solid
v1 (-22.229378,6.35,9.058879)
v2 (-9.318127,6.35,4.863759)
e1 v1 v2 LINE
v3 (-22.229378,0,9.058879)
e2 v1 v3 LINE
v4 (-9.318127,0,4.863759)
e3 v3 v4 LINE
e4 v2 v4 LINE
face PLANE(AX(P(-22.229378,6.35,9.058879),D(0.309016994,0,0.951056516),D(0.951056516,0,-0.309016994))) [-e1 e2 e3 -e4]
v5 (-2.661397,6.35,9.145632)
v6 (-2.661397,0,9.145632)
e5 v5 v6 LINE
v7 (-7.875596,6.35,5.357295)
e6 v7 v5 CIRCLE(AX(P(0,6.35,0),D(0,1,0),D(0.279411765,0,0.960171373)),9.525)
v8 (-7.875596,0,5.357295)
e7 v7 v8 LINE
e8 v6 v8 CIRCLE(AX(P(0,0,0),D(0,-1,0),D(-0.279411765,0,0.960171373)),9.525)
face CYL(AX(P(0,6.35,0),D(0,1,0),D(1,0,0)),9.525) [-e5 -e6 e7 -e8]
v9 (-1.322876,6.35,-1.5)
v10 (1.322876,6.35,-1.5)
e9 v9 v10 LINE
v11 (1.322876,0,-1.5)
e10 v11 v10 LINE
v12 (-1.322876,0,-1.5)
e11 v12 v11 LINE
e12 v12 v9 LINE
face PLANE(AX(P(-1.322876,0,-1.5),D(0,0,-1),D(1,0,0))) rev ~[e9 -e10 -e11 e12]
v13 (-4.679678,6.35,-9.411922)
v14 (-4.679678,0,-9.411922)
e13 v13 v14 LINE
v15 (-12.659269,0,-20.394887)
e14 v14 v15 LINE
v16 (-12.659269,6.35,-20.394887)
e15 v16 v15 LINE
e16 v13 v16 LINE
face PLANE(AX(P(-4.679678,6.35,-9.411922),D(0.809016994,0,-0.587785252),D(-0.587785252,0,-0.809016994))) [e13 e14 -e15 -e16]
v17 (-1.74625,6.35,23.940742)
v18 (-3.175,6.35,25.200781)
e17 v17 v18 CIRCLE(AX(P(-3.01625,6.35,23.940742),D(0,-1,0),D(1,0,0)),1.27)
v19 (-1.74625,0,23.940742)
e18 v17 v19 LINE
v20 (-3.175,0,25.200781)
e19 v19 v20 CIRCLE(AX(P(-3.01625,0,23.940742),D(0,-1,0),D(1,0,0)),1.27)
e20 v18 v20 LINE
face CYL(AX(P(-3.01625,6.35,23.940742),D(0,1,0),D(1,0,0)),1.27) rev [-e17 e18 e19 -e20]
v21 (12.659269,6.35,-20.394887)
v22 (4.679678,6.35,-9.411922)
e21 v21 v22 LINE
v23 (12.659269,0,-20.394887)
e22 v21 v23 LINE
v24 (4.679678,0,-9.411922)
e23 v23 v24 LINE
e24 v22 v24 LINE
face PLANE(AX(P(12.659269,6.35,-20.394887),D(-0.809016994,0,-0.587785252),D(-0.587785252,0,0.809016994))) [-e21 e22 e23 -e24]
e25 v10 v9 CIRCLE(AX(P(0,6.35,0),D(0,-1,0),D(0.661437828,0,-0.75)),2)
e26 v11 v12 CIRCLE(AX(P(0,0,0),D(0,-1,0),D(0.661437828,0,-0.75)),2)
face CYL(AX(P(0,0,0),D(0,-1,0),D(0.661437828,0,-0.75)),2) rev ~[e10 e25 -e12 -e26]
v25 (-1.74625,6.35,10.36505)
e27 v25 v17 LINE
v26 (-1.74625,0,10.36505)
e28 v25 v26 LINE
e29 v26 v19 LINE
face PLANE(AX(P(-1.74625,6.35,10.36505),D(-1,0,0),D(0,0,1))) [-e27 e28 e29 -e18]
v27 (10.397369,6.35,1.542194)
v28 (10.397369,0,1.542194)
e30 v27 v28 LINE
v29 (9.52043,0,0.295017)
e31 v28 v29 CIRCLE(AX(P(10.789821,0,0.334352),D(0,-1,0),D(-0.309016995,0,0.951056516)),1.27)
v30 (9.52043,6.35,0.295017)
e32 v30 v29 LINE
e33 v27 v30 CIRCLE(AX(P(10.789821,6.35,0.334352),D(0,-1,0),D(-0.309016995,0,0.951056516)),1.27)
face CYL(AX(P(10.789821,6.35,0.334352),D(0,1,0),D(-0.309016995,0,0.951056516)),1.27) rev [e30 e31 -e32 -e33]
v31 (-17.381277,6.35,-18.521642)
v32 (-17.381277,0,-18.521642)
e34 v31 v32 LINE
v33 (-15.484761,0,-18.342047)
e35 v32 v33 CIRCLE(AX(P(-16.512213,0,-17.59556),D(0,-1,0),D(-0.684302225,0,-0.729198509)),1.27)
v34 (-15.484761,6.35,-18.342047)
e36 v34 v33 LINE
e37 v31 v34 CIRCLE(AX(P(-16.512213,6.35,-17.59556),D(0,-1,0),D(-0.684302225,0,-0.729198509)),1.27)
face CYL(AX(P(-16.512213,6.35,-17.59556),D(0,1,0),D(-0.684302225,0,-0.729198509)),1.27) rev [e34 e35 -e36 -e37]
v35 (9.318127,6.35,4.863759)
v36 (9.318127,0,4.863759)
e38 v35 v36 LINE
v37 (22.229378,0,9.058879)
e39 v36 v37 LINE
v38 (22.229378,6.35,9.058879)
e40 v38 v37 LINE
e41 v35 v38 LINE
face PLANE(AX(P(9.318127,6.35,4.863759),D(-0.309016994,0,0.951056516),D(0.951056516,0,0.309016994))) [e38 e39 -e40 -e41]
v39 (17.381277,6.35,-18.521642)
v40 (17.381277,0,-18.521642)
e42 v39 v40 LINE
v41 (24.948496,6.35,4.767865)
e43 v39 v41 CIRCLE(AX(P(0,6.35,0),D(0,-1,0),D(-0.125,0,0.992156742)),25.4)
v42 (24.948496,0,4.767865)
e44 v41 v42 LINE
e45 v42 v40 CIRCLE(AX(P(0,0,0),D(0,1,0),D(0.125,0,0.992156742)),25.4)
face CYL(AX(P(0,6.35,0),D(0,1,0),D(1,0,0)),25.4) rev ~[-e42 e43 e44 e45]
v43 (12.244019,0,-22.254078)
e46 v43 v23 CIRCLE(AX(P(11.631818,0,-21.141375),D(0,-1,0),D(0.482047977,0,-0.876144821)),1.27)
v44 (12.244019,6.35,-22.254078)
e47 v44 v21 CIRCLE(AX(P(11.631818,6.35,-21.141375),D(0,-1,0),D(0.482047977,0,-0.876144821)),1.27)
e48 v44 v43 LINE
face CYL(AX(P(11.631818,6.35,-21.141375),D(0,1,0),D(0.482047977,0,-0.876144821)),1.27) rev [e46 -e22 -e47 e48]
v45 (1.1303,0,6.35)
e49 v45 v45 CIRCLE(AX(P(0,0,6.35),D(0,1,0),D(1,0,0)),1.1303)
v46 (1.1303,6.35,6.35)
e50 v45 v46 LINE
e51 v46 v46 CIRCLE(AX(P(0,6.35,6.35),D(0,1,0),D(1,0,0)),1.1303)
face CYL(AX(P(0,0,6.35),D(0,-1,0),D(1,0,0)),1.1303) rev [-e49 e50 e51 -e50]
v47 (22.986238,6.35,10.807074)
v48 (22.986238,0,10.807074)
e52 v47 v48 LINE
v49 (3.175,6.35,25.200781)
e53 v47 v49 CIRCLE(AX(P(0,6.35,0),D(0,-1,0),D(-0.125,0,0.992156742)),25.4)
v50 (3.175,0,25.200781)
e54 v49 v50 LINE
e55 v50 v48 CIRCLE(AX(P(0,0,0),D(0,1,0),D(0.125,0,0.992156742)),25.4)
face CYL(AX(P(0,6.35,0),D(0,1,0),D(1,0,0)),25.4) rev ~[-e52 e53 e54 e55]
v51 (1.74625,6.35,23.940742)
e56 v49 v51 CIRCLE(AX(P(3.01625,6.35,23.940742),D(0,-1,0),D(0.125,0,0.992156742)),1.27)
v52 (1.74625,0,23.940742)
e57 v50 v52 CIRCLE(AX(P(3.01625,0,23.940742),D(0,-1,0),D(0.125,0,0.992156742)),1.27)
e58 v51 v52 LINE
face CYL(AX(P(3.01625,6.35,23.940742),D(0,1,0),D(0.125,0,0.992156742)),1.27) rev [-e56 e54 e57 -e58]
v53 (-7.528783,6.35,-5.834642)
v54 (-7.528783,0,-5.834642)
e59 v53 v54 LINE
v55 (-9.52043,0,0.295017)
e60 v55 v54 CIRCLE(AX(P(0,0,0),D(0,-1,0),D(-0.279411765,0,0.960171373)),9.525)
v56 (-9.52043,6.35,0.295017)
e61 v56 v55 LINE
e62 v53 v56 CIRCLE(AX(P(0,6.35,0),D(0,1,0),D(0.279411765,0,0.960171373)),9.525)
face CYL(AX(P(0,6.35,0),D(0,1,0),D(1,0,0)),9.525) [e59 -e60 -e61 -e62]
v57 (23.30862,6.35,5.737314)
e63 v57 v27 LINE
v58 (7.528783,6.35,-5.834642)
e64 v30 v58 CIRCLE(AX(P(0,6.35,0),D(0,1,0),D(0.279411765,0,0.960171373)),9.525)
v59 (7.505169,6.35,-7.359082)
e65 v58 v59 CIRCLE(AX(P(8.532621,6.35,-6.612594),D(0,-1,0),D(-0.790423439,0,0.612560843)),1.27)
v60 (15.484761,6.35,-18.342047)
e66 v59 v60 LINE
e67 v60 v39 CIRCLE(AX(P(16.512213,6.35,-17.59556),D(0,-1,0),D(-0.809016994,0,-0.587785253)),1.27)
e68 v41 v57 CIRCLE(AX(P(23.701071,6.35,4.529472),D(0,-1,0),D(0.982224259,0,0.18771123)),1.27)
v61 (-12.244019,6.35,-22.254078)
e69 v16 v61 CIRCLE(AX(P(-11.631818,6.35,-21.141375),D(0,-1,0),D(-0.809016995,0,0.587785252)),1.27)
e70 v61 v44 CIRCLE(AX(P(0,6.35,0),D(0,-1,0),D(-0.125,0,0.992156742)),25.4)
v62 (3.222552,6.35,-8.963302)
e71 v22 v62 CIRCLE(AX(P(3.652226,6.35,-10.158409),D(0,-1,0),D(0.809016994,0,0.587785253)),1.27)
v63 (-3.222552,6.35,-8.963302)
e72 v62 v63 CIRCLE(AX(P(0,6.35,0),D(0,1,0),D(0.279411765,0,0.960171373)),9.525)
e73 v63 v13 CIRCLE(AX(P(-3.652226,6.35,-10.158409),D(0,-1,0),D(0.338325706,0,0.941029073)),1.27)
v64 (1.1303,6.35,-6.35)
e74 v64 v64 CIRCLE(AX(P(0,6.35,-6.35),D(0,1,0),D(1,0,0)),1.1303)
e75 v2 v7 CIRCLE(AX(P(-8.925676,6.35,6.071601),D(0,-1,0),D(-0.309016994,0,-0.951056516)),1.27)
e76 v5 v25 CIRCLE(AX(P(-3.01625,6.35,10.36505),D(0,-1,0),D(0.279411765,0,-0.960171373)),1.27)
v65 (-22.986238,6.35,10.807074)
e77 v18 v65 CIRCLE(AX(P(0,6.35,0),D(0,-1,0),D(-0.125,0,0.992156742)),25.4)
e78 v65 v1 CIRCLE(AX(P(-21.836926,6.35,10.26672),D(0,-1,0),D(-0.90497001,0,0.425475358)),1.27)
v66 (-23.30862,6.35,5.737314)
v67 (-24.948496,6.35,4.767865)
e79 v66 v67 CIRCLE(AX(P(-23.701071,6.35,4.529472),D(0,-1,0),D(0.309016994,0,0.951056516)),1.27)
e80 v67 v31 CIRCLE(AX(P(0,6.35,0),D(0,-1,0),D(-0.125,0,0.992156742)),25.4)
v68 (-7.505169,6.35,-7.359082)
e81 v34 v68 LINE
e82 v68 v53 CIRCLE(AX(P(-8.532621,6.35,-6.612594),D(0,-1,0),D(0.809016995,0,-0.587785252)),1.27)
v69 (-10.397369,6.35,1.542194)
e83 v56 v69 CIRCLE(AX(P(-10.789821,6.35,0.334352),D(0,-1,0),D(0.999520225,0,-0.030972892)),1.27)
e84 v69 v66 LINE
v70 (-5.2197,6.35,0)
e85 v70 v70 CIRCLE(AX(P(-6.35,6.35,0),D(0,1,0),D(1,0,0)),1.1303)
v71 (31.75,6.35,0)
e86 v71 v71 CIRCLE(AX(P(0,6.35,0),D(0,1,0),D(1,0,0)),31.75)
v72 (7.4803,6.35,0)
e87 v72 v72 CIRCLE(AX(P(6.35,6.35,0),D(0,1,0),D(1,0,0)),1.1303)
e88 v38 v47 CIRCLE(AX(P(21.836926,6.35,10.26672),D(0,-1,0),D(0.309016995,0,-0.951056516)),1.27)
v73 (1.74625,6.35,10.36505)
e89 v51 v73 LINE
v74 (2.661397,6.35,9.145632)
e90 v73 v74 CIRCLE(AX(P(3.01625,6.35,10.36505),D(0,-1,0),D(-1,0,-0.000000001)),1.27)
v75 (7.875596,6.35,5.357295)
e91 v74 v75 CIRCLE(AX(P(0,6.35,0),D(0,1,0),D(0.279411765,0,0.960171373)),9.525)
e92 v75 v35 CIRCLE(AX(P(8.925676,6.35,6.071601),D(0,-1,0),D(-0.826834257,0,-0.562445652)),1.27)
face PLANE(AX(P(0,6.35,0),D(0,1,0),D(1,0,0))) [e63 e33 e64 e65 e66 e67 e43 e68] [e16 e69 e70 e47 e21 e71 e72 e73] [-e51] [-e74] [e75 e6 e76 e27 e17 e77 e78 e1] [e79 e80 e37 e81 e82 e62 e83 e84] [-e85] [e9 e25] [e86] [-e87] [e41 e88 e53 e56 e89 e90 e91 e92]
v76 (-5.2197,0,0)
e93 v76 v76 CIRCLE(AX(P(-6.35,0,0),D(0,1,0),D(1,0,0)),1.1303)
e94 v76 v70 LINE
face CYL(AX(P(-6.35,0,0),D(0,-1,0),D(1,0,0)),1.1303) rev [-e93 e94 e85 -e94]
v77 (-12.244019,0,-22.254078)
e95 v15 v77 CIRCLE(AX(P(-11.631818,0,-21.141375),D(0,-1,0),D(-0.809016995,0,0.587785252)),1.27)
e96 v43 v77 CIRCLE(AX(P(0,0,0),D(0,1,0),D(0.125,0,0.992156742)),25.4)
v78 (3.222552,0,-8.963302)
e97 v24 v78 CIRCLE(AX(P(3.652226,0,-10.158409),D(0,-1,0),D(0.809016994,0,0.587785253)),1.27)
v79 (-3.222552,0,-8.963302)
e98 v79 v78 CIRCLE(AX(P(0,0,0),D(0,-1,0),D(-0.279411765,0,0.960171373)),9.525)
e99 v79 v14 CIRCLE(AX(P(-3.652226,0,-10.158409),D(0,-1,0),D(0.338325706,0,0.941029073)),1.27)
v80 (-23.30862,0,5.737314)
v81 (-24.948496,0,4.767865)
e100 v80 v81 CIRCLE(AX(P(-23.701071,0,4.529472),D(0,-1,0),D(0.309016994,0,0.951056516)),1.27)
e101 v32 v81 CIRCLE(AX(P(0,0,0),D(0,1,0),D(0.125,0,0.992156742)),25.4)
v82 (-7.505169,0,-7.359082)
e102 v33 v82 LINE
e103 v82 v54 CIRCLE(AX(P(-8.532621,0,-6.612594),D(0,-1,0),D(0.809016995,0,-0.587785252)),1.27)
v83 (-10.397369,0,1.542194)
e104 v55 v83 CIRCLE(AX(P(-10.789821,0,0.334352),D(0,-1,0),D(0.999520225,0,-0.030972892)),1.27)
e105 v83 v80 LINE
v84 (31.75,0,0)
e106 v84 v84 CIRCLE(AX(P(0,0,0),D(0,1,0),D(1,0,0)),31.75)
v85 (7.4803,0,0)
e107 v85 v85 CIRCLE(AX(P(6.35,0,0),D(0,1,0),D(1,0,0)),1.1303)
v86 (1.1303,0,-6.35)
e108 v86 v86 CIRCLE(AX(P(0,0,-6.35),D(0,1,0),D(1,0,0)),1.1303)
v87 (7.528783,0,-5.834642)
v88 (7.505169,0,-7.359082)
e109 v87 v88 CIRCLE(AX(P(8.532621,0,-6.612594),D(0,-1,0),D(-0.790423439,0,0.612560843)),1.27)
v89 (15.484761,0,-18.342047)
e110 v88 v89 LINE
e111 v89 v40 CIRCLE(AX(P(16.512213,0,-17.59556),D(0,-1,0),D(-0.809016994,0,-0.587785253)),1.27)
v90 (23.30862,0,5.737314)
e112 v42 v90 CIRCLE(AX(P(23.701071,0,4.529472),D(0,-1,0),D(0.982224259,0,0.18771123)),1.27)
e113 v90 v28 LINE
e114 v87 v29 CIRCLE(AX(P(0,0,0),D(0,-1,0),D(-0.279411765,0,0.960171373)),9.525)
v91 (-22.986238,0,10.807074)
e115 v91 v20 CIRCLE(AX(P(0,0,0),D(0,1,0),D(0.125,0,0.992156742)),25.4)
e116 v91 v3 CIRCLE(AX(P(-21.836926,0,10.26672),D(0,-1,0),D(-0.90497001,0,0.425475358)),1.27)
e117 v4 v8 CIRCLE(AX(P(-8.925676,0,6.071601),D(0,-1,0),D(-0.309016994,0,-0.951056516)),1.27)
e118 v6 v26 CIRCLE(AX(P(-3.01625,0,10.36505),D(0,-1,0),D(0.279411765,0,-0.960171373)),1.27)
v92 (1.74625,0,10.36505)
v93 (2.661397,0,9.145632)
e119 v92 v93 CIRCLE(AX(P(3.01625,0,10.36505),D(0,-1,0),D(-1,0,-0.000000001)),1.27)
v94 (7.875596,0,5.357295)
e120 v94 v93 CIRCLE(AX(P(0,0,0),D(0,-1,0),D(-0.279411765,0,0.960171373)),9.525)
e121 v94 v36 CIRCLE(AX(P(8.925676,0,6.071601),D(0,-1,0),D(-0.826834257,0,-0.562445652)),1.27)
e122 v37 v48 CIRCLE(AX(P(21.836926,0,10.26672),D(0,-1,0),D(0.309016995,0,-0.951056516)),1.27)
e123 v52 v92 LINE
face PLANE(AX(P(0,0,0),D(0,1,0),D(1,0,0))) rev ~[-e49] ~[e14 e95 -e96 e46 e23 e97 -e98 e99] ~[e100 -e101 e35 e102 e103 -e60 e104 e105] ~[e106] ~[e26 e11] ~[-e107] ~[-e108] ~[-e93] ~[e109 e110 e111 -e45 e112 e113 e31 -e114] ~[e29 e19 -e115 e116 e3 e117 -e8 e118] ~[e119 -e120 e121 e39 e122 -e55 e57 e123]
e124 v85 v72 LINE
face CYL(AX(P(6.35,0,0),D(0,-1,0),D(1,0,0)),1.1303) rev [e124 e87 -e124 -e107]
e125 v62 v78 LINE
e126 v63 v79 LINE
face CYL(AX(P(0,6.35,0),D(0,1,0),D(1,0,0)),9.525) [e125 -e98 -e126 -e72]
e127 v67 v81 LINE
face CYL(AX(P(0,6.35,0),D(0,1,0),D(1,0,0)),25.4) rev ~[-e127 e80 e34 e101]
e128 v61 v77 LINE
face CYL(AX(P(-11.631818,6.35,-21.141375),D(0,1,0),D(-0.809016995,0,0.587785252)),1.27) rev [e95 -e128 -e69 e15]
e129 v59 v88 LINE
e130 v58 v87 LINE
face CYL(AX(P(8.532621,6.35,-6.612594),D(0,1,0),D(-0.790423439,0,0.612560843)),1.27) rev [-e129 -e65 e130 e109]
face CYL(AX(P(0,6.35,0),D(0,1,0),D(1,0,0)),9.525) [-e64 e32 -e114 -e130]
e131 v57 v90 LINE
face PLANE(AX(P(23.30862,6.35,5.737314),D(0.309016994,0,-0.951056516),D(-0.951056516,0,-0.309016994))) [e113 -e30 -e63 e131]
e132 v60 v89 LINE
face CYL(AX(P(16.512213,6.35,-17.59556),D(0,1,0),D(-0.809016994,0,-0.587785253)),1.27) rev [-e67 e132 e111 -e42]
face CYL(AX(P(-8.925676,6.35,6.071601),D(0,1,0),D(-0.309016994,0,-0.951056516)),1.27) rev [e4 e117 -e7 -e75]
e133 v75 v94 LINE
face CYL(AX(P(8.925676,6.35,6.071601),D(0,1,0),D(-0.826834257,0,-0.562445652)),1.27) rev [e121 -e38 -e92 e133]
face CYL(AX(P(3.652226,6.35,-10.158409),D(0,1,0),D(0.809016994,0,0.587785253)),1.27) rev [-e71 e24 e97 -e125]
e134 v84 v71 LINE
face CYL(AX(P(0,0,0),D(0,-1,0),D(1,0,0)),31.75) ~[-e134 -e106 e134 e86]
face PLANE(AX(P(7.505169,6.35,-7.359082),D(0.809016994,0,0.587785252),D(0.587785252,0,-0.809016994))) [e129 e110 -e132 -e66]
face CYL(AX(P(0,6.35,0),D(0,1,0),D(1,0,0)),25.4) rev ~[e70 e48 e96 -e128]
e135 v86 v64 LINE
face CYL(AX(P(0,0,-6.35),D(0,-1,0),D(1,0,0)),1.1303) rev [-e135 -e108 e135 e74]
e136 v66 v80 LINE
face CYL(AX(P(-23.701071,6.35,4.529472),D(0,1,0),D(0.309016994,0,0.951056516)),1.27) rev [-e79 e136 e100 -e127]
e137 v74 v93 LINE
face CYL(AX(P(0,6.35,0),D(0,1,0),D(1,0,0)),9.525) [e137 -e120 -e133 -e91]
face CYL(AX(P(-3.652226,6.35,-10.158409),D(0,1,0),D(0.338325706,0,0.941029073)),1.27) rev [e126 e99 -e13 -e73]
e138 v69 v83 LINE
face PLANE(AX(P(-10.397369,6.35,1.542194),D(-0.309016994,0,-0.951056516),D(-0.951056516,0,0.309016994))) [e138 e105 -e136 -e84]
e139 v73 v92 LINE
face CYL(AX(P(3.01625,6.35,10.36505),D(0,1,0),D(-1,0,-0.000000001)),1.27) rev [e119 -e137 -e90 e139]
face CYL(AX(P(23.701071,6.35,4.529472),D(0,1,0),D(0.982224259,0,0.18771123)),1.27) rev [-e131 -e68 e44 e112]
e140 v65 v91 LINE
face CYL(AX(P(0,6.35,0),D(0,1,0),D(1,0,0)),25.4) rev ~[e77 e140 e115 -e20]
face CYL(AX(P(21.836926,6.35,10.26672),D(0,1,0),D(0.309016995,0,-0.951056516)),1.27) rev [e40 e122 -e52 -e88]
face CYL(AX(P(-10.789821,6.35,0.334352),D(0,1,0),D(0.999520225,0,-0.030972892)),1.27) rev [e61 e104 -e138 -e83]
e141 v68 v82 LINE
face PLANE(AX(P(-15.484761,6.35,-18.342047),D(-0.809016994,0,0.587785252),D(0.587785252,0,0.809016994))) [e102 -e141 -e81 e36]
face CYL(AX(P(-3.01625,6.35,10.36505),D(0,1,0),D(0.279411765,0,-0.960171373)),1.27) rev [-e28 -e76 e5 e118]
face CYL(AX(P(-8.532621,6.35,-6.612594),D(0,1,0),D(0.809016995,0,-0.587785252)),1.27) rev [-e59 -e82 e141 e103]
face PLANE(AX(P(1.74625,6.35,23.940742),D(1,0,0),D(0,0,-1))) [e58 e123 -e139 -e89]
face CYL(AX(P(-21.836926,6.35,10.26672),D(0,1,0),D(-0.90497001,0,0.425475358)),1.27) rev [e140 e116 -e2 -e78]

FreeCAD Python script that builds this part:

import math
import FreeCAD as App
import Part
import Sketcher

V = App.Vector
Q = App.Units.Quantity

doc = App.newDocument("Part")
params = doc.addObject("Spreadsheet::Sheet", "Params")
for row, (alias, value) in enumerate([
    ("sketch1_diameter", "2.5 in"),
    ("sketch1_diameter2", "0.089 in"),
    ("pad1_length", "0.25 in"),
    ("sketch2_diameter", "2 in"),
    ("sketch2_diameter2", "0.75 in"),
    ("pocket1_length", "0.25 in"),
    ("sketch3_radius", "1 in"),
    ("sketch3_radius2", "0.05 in"),
    ("sketch3_radius3", "0.375 in"),
    ("pad2_length", "0.25 in"),
], start=1):
    params.set(f"A{row}", alias)
    params.set(f"B{row}", "=" + value)
    params.setAlias(f"B{row}", alias)

body = doc.addObject("PartDesign::Body", "Body")
body.AllowCompound = True

# Sketch on XZ plane
sketch1 = body.newObject("Sketcher::SketchObject", "Sketch")
sketch1.AttachmentSupport = (doc.getObject("XZ_Plane"), [""])
sketch1.MapMode = "FlatFace"
sketch1.addGeometry([
    Part.Circle(V(0, 0, 0), V(0, 0, 1), 31.75),  # 0
    Part.Circle(V(0, 6.35, 0), V(0, 0, 1), 1.1303),  # 1
    Part.Circle(V(-6.35, 0, 0), V(0, 0, 1), 1.1303),  # 2
    Part.ArcOfCircle(Part.Circle(V(0, 0, 0), V(0, 0, 1), 2), math.radians(-48.590378), math.radians(228.590378)),  # 3
    Part.LineSegment(V(-1.322876, -1.5, 0), V(1.322876, -1.5, 0)),  # 4
    Part.Circle(V(6.35, 0, 0), V(0, 0, 1), 1.1303),  # 5
    Part.Circle(V(0, -6.35, 0), V(0, 0, 1), 1.1303),  # 6
], False)
sketch1.addConstraint([
    Sketcher.Constraint("Coincident", 3, 1, 4, 2),
    Sketcher.Constraint("Coincident", 4, 1, 3, 2),
    Sketcher.Constraint("Horizontal", 4),
    Sketcher.Constraint("Coincident", 0, 3, -1, 1),
    Sketcher.Constraint("Coincident", 3, 3, -1, 1),
    Sketcher.Constraint("Equal", 1, 2),
    Sketcher.Constraint("Equal", 2, 5),
    Sketcher.Constraint("Equal", 5, 6),
    Sketcher.Constraint("Symmetric", 2, 3, 5, 3, -1, 1),
    Sketcher.Constraint("Symmetric", 1, 3, 6, 3, -1, 1),
    Sketcher.Constraint("PointOnObject", 1, 3, -2),
    Sketcher.Constraint("PointOnObject", 2, 3, -1),
    Sketcher.Constraint("Diameter", 0, Q("2.5 in")),
    Sketcher.Constraint("Diameter", 1, Q("0.089 in")),
    Sketcher.Constraint("DistanceX", 2, 3, 5, 3, Q("0.5 in")),
    Sketcher.Constraint("DistanceY", 6, 3, 1, 3, Q("0.5 in")),
    Sketcher.Constraint("Radius", 3, 2.0),
    Sketcher.Constraint("DistanceX", 4, 1, 4, 2, 2.645751),
])
sketch1.setExpression("Constraints[12]", "Params.sketch1_diameter")
sketch1.setExpression("Constraints[13]", "Params.sketch1_diameter2")
pad1 = body.newObject("PartDesign::Pad", "Pad")
pad1.Profile = sketch1
pad1.setExpression("Length", "Params.pad1_length")
pad1.Reversed = True

# Sketch on XZ plane
sketch2 = body.newObject("Sketcher::SketchObject", "Sketch001")
sketch2.AttachmentSupport = (doc.getObject("XZ_Plane"), [""])
sketch2.MapMode = "FlatFace"
sketch2.AttachmentOffset = App.Placement(V(0, 0, -0.25 * 25.4), App.Rotation())
sketch2.addGeometry([
    Part.Circle(V(0, 0, 0), V(0, 0, 1), 25.4),
    Part.Circle(V(0, 0, 0), V(0, 0, 1), 9.525),
], False)
sketch2.addConstraint([
    Sketcher.Constraint("Coincident", 0, 3, -1, 1),
    Sketcher.Constraint("Coincident", 1, 3, -1, 1),
    Sketcher.Constraint("Diameter", 0, Q("2 in")),
    Sketcher.Constraint("Diameter", 1, Q("0.75 in")),
])
sketch2.setExpression("Constraints[2]", "Params.sketch2_diameter")
sketch2.setExpression("Constraints[3]", "Params.sketch2_diameter2")
pocket1 = body.newObject("PartDesign::Pocket", "Pocket")
pocket1.Profile = sketch2
pocket1.setExpression("Length", "Params.pocket1_length")
pocket1.Reversed = True

# Sketch on XZ plane
sketch3 = body.newObject("Sketcher::SketchObject", "Sketch002")
sketch3.AttachmentSupport = (doc.getObject("XZ_Plane"), [""])
sketch3.MapMode = "FlatFace"
sketch3.AttachmentOffset = App.Placement(V(0, 0, -0.25 * 25.4), App.Rotation())
sketch3.addGeometry([
    Part.LineSegment(V(-1.74625, 10.36505, 0), V(-1.74625, 23.940742, 0)),  # 0
    Part.ArcOfCircle(Part.Circle(V(-3.01625, 23.940742, 0), V(0, 0, 1), 1.27), math.radians(0), math.radians(97.180756)),  # 1
    Part.ArcOfCircle(Part.Circle(V(0, 0, 0), V(0, 0, 1), 25.4), math.radians(82.819244), math.radians(97.180756)),  # 2
    Part.ArcOfCircle(Part.Circle(V(3.01625, 23.940742, 0), V(0, 0, 1), 1.27), math.radians(82.819244), math.radians(180)),  # 3
    Part.LineSegment(V(1.74625, 23.940742, 0), V(1.74625, 10.36505, 0)),  # 4
    Part.ArcOfCircle(Part.Circle(V(3.01625, 10.36505, 0), V(0, 0, 1), 1.27), math.radians(-180), math.radians(-106.2251)),  # 5
    Part.ArcOfCircle(Part.Circle(V(0, 0, 0), V(0, 0, 1), 9.525), math.radians(73.7749), math.radians(106.2251)),  # 6
    Part.ArcOfCircle(Part.Circle(V(-3.01625, 10.36505, 0), V(0, 0, 1), 1.27), math.radians(-73.7749), math.radians(0)),  # 7
], False)
sketch3.addConstraint([
    Sketcher.Constraint("Tangent", 0, 2, 1, 1),
    Sketcher.Constraint("Tangent", 1, 2, 2, 2),
    Sketcher.Constraint("Tangent", 2, 1, 3, 1),
    Sketcher.Constraint("Tangent", 3, 2, 4, 1),
    Sketcher.Constraint("Tangent", 4, 2, 5, 1),
    Sketcher.Constraint("Tangent", 5, 2, 6, 1),
    Sketcher.Constraint("Tangent", 6, 2, 7, 1),
    Sketcher.Constraint("Tangent", 7, 2, 0, 1),
    Sketcher.Constraint("Vertical", 0),
    Sketcher.Constraint("Vertical", 4),
    Sketcher.Constraint("Coincident", 2, 3, -1, 1),
    Sketcher.Constraint("Coincident", 6, 3, -1, 1),
    Sketcher.Constraint("Equal", 1, 3),
    Sketcher.Constraint("Equal", 3, 5),
    Sketcher.Constraint("Equal", 5, 7),
    Sketcher.Constraint("Horizontal", 1, 3, 3, 3),
    Sketcher.Constraint("Radius", 2, Q("1 in")),
    Sketcher.Constraint("Radius", 1, Q("0.05 in")),
    Sketcher.Constraint("Radius", 6, Q("0.375 in")),
    Sketcher.Constraint("DistanceX", 1, 2, 2, 1, Q("0.25 in")),
])
sketch3.setExpression("Constraints[16]", "Params.sketch3_radius")
sketch3.setExpression("Constraints[17]", "Params.sketch3_radius2")
sketch3.setExpression("Constraints[18]", "Params.sketch3_radius3")
pad2 = body.newObject("PartDesign::Pad", "Pad001")
pad2.Profile = sketch3
pad2.setExpression("Length", "Params.pad2_length")
doc.recompute()

polarpattern = body.newObject("PartDesign::PolarPattern", "PolarPattern")
polarpattern.Originals = [pad2]
polarpattern.Axis = (doc.getObject("Y_Axis"), [""])
polarpattern.Angle = 360
polarpattern.Occurrences = 5
body.Tip = polarpattern

doc.recompute()
